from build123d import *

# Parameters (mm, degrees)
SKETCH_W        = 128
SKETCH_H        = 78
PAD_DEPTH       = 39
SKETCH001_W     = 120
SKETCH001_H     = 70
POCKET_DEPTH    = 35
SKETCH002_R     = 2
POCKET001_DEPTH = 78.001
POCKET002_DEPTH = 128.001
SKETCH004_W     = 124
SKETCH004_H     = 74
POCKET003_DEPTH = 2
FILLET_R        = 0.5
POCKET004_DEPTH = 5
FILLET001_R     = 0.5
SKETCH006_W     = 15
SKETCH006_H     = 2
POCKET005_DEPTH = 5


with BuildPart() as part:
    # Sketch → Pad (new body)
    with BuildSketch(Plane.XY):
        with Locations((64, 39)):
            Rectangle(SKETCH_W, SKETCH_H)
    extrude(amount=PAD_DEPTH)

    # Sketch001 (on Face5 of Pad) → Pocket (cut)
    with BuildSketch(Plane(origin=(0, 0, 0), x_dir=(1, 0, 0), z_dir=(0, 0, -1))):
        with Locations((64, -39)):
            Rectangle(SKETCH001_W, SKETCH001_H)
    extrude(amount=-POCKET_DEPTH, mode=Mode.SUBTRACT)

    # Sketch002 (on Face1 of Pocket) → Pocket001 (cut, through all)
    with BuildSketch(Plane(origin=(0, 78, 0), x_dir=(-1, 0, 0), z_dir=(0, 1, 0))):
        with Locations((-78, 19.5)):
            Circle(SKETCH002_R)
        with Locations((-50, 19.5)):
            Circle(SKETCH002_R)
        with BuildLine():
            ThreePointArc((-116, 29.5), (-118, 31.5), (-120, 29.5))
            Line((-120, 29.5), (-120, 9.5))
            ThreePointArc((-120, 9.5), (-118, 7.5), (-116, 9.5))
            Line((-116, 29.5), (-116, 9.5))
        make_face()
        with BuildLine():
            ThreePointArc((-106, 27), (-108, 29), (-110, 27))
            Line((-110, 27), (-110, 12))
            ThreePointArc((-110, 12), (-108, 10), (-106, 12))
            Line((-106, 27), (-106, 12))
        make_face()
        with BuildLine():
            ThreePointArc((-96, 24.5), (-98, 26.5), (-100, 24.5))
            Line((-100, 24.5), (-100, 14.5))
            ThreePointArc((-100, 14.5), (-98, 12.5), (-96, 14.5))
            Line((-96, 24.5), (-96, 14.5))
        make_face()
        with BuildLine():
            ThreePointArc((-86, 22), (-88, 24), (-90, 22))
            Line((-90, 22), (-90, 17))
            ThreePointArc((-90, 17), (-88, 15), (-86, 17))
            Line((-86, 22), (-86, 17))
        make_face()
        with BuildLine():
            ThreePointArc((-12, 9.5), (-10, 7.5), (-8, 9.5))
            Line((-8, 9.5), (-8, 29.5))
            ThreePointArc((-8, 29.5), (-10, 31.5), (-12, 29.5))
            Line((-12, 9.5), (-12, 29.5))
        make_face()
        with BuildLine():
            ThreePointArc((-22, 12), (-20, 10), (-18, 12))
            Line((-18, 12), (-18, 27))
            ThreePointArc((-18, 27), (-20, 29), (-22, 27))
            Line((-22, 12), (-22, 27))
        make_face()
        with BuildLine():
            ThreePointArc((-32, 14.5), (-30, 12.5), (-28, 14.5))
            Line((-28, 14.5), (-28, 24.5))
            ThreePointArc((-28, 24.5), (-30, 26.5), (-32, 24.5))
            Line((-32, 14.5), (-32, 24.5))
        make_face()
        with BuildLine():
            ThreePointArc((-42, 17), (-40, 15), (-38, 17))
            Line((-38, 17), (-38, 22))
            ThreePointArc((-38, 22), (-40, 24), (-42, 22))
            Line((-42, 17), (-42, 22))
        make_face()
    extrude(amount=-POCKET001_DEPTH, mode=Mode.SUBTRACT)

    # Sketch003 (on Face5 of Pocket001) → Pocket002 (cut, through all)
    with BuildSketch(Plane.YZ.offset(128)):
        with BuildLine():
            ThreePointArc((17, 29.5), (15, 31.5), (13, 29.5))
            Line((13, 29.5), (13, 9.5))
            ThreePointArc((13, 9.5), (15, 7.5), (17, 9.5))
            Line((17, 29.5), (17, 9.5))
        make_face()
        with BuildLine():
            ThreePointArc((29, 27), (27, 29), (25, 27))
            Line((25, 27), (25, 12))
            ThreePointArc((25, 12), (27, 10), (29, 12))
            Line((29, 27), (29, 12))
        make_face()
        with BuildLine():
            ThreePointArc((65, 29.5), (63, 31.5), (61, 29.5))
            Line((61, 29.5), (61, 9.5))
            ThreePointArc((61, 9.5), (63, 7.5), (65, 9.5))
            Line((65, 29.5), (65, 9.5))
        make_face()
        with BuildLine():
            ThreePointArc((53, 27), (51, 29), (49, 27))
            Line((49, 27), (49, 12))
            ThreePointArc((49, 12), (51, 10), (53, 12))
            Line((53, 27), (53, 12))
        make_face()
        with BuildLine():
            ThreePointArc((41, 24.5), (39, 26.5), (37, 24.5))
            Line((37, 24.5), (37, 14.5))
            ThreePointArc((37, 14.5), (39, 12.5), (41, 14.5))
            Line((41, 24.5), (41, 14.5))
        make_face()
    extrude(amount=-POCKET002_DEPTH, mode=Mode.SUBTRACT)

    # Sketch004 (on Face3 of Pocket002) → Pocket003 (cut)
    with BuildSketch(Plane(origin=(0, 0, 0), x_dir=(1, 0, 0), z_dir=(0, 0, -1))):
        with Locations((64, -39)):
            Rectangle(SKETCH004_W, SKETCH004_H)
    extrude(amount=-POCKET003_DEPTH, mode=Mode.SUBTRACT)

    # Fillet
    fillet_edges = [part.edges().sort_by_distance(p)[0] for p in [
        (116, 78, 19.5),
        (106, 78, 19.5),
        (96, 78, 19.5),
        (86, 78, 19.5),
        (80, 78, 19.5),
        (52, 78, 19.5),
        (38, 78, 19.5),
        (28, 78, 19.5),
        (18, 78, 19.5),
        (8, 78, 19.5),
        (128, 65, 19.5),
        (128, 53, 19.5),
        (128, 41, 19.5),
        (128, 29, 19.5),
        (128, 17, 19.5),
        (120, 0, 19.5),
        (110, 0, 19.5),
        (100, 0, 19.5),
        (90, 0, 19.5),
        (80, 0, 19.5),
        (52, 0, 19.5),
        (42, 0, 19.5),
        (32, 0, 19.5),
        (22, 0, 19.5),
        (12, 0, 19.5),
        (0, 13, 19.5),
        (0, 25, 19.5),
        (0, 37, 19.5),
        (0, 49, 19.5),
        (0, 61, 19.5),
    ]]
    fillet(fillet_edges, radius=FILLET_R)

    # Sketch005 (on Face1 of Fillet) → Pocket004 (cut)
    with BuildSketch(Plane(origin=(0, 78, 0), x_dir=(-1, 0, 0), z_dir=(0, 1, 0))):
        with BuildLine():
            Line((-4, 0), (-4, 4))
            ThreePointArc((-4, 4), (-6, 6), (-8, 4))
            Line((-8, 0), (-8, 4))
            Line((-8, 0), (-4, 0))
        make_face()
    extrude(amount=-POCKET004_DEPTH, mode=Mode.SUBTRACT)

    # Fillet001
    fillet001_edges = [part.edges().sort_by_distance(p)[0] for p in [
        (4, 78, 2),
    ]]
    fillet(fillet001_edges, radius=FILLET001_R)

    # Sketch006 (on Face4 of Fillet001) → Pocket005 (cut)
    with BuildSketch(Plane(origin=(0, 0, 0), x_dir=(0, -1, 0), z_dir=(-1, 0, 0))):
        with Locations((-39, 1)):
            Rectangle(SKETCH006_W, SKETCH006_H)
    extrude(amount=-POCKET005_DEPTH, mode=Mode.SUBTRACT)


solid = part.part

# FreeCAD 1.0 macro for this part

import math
import FreeCAD as App
import Part
import Sketcher


def edges_at(feature, points):
    """Names of the edges that pass closest to the given points."""
    edges = feature.Shape.Edges
    near = lambda p: min(range(len(edges)), key=lambda i: edges[i].distToShape(Part.Vertex(*p))[0])
    return sorted({f"Edge{near(p) + 1}" for p in points})

doc = App.newDocument("Part")
body = doc.addObject("PartDesign::Body", "Body")

# Sketch on XY plane
sketch1 = body.newObject("Sketcher::SketchObject", "Sketch")
sketch1.AttachmentSupport = (doc.getObject("XY_Plane"), [""])
sketch1.MapMode = "FlatFace"
sketch1.addGeometry([
    Part.LineSegment(App.Vector(0, 78, 0), App.Vector(0, 0, 0)),
    Part.LineSegment(App.Vector(0, 0, 0), App.Vector(128, 0, 0)),
    Part.LineSegment(App.Vector(128, 0, 0), App.Vector(128, 78, 0)),
    Part.LineSegment(App.Vector(128, 78, 0), App.Vector(0, 78, 0)),
], False)
sketch1.addConstraint([
    Sketcher.Constraint("Coincident", 0, 2, 1, 1),
    Sketcher.Constraint("Coincident", 1, 2, 2, 1),
    Sketcher.Constraint("Coincident", 2, 2, 3, 1),
    Sketcher.Constraint("Coincident", 3, 2, 0, 1),
    Sketcher.Constraint("Vertical", 0),
    Sketcher.Constraint("Horizontal", 1),
    Sketcher.Constraint("Vertical", 2),
    Sketcher.Constraint("Horizontal", 3),
    Sketcher.Constraint("Coincident", 0, 2, -1, 1),
    Sketcher.Constraint("DistanceX", 1, 1, 1, 2, 128.0),
    Sketcher.Constraint("DistanceY", 0, 2, 0, 1, 78.0),
])
pad1 = body.newObject("PartDesign::Pad", "Pad")
pad1.Profile = sketch1
pad1.Length = 39

# Sketch on XY plane
sketch2 = body.newObject("Sketcher::SketchObject", "Sketch001")
sketch2.AttachmentSupport = (doc.getObject("XY_Plane"), [""])
sketch2.MapMode = "FlatFace"
sketch2.addGeometry([
    Part.LineSegment(App.Vector(4, 4, 0), App.Vector(4, 74, 0)),
    Part.LineSegment(App.Vector(4, 74, 0), App.Vector(124, 74, 0)),
    Part.LineSegment(App.Vector(124, 74, 0), App.Vector(124, 4, 0)),
    Part.LineSegment(App.Vector(124, 4, 0), App.Vector(4, 4, 0)),
], False)
sketch2.addConstraint([
    Sketcher.Constraint("Coincident", 0, 2, 1, 1),
    Sketcher.Constraint("Coincident", 1, 2, 2, 1),
    Sketcher.Constraint("Coincident", 2, 2, 3, 1),
    Sketcher.Constraint("Coincident", 3, 2, 0, 1),
    Sketcher.Constraint("Vertical", 0),
    Sketcher.Constraint("Horizontal", 1),
    Sketcher.Constraint("Vertical", 2),
    Sketcher.Constraint("Horizontal", 3),
    Sketcher.Constraint("DistanceX", 1, 1, 1, 2, 120.0),
    Sketcher.Constraint("DistanceY", 0, 1, 0, 2, 70.0),
    Sketcher.Constraint("DistanceX", -1, 1, 0, 2, 4.0),
    Sketcher.Constraint("DistanceY", -1, 1, 0, 2, 74.0),
])
pocket1 = body.newObject("PartDesign::Pocket", "Pocket")
pocket1.Profile = sketch2
pocket1.Length = 35
pocket1.Reversed = True

# Sketch on XZ plane
sketch3 = body.newObject("Sketcher::SketchObject", "Sketch002")
sketch3.AttachmentSupport = (doc.getObject("XZ_Plane"), [""])
sketch3.MapMode = "FlatFace"
sketch3.AttachmentOffset = App.Placement(App.Vector(0, 0, -78), App.Rotation())
sketch3.addGeometry([
    Part.Circle(App.Vector(78, 19.5, 0), App.Vector(0, 0, 1), 2),  # 0
    Part.Circle(App.Vector(50, 19.5, 0), App.Vector(0, 0, 1), 2),  # 1
    Part.ArcOfCircle(Part.Circle(App.Vector(118, 29.5, 0), App.Vector(0, 0, 1), 2), math.radians(0), math.radians(180)),  # 2
    Part.LineSegment(App.Vector(120, 29.5, 0), App.Vector(120, 9.5, 0)),  # 3
    Part.ArcOfCircle(Part.Circle(App.Vector(118, 9.5, 0), App.Vector(0, 0, 1), 2), math.radians(180), math.radians(360)),  # 4
    Part.LineSegment(App.Vector(116, 9.5, 0), App.Vector(116, 29.5, 0)),  # 5
    Part.ArcOfCircle(Part.Circle(App.Vector(108, 27, 0), App.Vector(0, 0, 1), 2), math.radians(0), math.radians(180)),  # 6
    Part.LineSegment(App.Vector(110, 27, 0), App.Vector(110, 12, 0)),  # 7
    Part.ArcOfCircle(Part.Circle(App.Vector(108, 12, 0), App.Vector(0, 0, 1), 2), math.radians(180), math.radians(360)),  # 8
    Part.LineSegment(App.Vector(106, 12, 0), App.Vector(106, 27, 0)),  # 9
    Part.ArcOfCircle(Part.Circle(App.Vector(98, 24.5, 0), App.Vector(0, 0, 1), 2), math.radians(0), math.radians(180)),  # 10
    Part.LineSegment(App.Vector(100, 24.5, 0), App.Vector(100, 14.5, 0)),  # 11
    Part.ArcOfCircle(Part.Circle(App.Vector(98, 14.5, 0), App.Vector(0, 0, 1), 2), math.radians(180), math.radians(360)),  # 12
    Part.LineSegment(App.Vector(96, 14.5, 0), App.Vector(96, 24.5, 0)),  # 13
    Part.ArcOfCircle(Part.Circle(App.Vector(88, 22, 0), App.Vector(0, 0, 1), 2), math.radians(0), math.radians(180)),  # 14
    Part.LineSegment(App.Vector(90, 22, 0), App.Vector(90, 17, 0)),  # 15
    Part.ArcOfCircle(Part.Circle(App.Vector(88, 17, 0), App.Vector(0, 0, 1), 2), math.radians(180), math.radians(360)),  # 16
    Part.LineSegment(App.Vector(86, 17, 0), App.Vector(86, 22, 0)),  # 17
    Part.ArcOfCircle(Part.Circle(App.Vector(10, 9.5, 0), App.Vector(0, 0, 1), 2), math.radians(180), math.radians(360)),  # 18
    Part.LineSegment(App.Vector(8, 9.5, 0), App.Vector(8, 29.5, 0)),  # 19
    Part.ArcOfCircle(Part.Circle(App.Vector(10, 29.5, 0), App.Vector(0, 0, 1), 2), math.radians(0), math.radians(180)),  # 20
    Part.LineSegment(App.Vector(12, 29.5, 0), App.Vector(12, 9.5, 0)),  # 21
    Part.ArcOfCircle(Part.Circle(App.Vector(20, 12, 0), App.Vector(0, 0, 1), 2), math.radians(180), math.radians(360)),  # 22
    Part.LineSegment(App.Vector(18, 12, 0), App.Vector(18, 27, 0)),  # 23
    Part.ArcOfCircle(Part.Circle(App.Vector(20, 27, 0), App.Vector(0, 0, 1), 2), math.radians(0), math.radians(180)),  # 24
    Part.LineSegment(App.Vector(22, 27, 0), App.Vector(22, 12, 0)),  # 25
    Part.ArcOfCircle(Part.Circle(App.Vector(30, 14.5, 0), App.Vector(0, 0, 1), 2), math.radians(180), math.radians(360)),  # 26
    Part.LineSegment(App.Vector(28, 14.5, 0), App.Vector(28, 24.5, 0)),  # 27
    Part.ArcOfCircle(Part.Circle(App.Vector(30, 24.5, 0), App.Vector(0, 0, 1), 2), math.radians(0), math.radians(180)),  # 28
    Part.LineSegment(App.Vector(32, 24.5, 0), App.Vector(32, 14.5, 0)),  # 29
    Part.ArcOfCircle(Part.Circle(App.Vector(40, 17, 0), App.Vector(0, 0, 1), 2), math.radians(180), math.radians(360)),  # 30
    Part.LineSegment(App.Vector(38, 17, 0), App.Vector(38, 22, 0)),  # 31
    Part.ArcOfCircle(Part.Circle(App.Vector(40, 22, 0), App.Vector(0, 0, 1), 2), math.radians(0), math.radians(180)),  # 32
    Part.LineSegment(App.Vector(42, 22, 0), App.Vector(42, 17, 0)),  # 33
], False)
sketch3.addConstraint([
    Sketcher.Constraint("Tangent", 2, 1, 3, 1),
    Sketcher.Constraint("Tangent", 3, 2, 4, 2),
    Sketcher.Constraint("Tangent", 4, 1, 5, 1),
    Sketcher.Constraint("Tangent", 5, 2, 2, 2),
    Sketcher.Constraint("Tangent", 6, 1, 7, 1),
    Sketcher.Constraint("Tangent", 7, 2, 8, 2),
    Sketcher.Constraint("Tangent", 8, 1, 9, 1),
    Sketcher.Constraint("Tangent", 9, 2, 6, 2),
    Sketcher.Constraint("Tangent", 10, 1, 11, 1),
    Sketcher.Constraint("Tangent", 11, 2, 12, 2),
    Sketcher.Constraint("Tangent", 12, 1, 13, 1),
    Sketcher.Constraint("Tangent", 13, 2, 10, 2),
    Sketcher.Constraint("Tangent", 14, 1, 15, 1),
    Sketcher.Constraint("Tangent", 15, 2, 16, 2),
    Sketcher.Constraint("Tangent", 16, 1, 17, 1),
    Sketcher.Constraint("Tangent", 17, 2, 14, 2),
    Sketcher.Constraint("Tangent", 18, 1, 19, 1),
    Sketcher.Constraint("Tangent", 19, 2, 20, 2),
    Sketcher.Constraint("Tangent", 20, 1, 21, 1),
    Sketcher.Constraint("Tangent", 21, 2, 18, 2),
    Sketcher.Constraint("Tangent", 22, 1, 23, 1),
    Sketcher.Constraint("Tangent", 23, 2, 24, 2),
    Sketcher.Constraint("Tangent", 24, 1, 25, 1),
    Sketcher.Constraint("Tangent", 25, 2, 22, 2),
    Sketcher.Constraint("Tangent", 26, 1, 27, 1),
    Sketcher.Constraint("Tangent", 27, 2, 28, 2),
    Sketcher.Constraint("Tangent", 28, 1, 29, 1),
    Sketcher.Constraint("Tangent", 29, 2, 26, 2),
    Sketcher.Constraint("Tangent", 30, 1, 31, 1),
    Sketcher.Constraint("Tangent", 31, 2, 32, 2),
    Sketcher.Constraint("Tangent", 32, 1, 33, 1),
    Sketcher.Constraint("Tangent", 33, 2, 30, 2),
    Sketcher.Constraint("Vertical", 3),
    Sketcher.Constraint("Vertical", 5),
    Sketcher.Constraint("Vertical", 7),
    Sketcher.Constraint("Vertical", 9),
    Sketcher.Constraint("Vertical", 11),
    Sketcher.Constraint("Vertical", 13),
    Sketcher.Constraint("Vertical", 15),
    Sketcher.Constraint("Vertical", 17),
    Sketcher.Constraint("Vertical", 19),
    Sketcher.Constraint("Vertical", 21),
    Sketcher.Constraint("Vertical", 23),
    Sketcher.Constraint("Vertical", 25),
    Sketcher.Constraint("Vertical", 27),
    Sketcher.Constraint("Vertical", 29),
    Sketcher.Constraint("Vertical", 31),
    Sketcher.Constraint("Vertical", 33),
    Sketcher.Constraint("Equal", 0, 1),
    Sketcher.Constraint("Equal", 1, 2),
    Sketcher.Constraint("Equal", 4, 6),
    Sketcher.Constraint("Equal", 8, 10),
    Sketcher.Constraint("Equal", 12, 14),
    Sketcher.Constraint("Equal", 16, 18),
    Sketcher.Constraint("Equal", 20, 22),
    Sketcher.Constraint("Equal", 24, 26),
    Sketcher.Constraint("Equal", 28, 30),
    Sketcher.Constraint("Horizontal", 0, 3, 1, 3),
    Sketcher.Constraint("Horizontal", 4, 3, 18, 3),
    Sketcher.Constraint("Horizontal", 2, 3, 20, 3),
    Sketcher.Constraint("Horizontal", 8, 3, 22, 3),
    Sketcher.Constraint("Horizontal", 6, 3, 24, 3),
    Sketcher.Constraint("Horizontal", 12, 3, 26, 3),
    Sketcher.Constraint("Horizontal", 10, 3, 28, 3),
    Sketcher.Constraint("Horizontal", 16, 3, 30, 3),
    Sketcher.Constraint("Horizontal", 14, 3, 32, 3),
    Sketcher.Constraint("Diameter", 0, 4.0),
    Sketcher.Constraint("DistanceY", 3, 2, 3, 1, 20.0),
    Sketcher.Constraint("DistanceY", 7, 2, 7, 1, 15.0),
    Sketcher.Constraint("DistanceY", 11, 2, 11, 1, 10.0),
    Sketcher.Constraint("DistanceY", 15, 2, 15, 1, 5.0),
    Sketcher.Constraint("DistanceX", -1, 1, 0, 3, 78.0),
    Sketcher.Constraint("DistanceX", -1, 1, 1, 3, 50.0),
    Sketcher.Constraint("DistanceX", -1, 1, 2, 3, 118.0),
    Sketcher.Constraint("DistanceX", -1, 1, 6, 3, 108.0),
    Sketcher.Constraint("DistanceY", -1, 1, 6, 3, 27.0),
    Sketcher.Constraint("DistanceX", -1, 1, 10, 3, 98.0),
    Sketcher.Constraint("DistanceX", -1, 1, 14, 3, 88.0),
    Sketcher.Constraint("DistanceY", -1, 1, 14, 3, 22.0),
    Sketcher.Constraint("DistanceX", -1, 1, 18, 3, 10.0),
    Sketcher.Constraint("DistanceX", -1, 1, 22, 3, 20.0),
    Sketcher.Constraint("DistanceX", -1, 1, 26, 3, 30.0),
    Sketcher.Constraint("DistanceX", -1, 1, 30, 3, 40.0),
    Sketcher.Constraint("DistanceY", 0, 3, 2, 3, 10.0),
    Sketcher.Constraint("DistanceY", 0, 3, 10, 3, 5.0),
    Sketcher.Constraint("DistanceY", -1, 1, 0, 3, 19.5),
])
pocket2 = body.newObject("PartDesign::Pocket", "Pocket001")
pocket2.Profile = sketch3
pocket2.Type = "ThroughAll"
pocket2.Reversed = True

# Sketch on YZ plane
sketch4 = body.newObject("Sketcher::SketchObject", "Sketch003")
sketch4.AttachmentSupport = (doc.getObject("YZ_Plane"), [""])
sketch4.MapMode = "FlatFace"
sketch4.AttachmentOffset = App.Placement(App.Vector(0, 0, 128), App.Rotation())
sketch4.addGeometry([
    Part.ArcOfCircle(Part.Circle(App.Vector(15, 29.5, 0), App.Vector(0, 0, 1), 2), math.radians(0), math.radians(180)),  # 0
    Part.LineSegment(App.Vector(13, 29.5, 0), App.Vector(13, 9.5, 0)),  # 1
    Part.ArcOfCircle(Part.Circle(App.Vector(15, 9.5, 0), App.Vector(0, 0, 1), 2), math.radians(180), math.radians(360)),  # 2
    Part.LineSegment(App.Vector(17, 9.5, 0), App.Vector(17, 29.5, 0)),  # 3
    Part.ArcOfCircle(Part.Circle(App.Vector(27, 27, 0), App.Vector(0, 0, 1), 2), math.radians(0), math.radians(180)),  # 4
    Part.LineSegment(App.Vector(25, 27, 0), App.Vector(25, 12, 0)),  # 5
    Part.ArcOfCircle(Part.Circle(App.Vector(27, 12, 0), App.Vector(0, 0, 1), 2), math.radians(180), math.radians(360)),  # 6
    Part.LineSegment(App.Vector(29, 12, 0), App.Vector(29, 27, 0)),  # 7
    Part.ArcOfCircle(Part.Circle(App.Vector(63, 29.5, 0), App.Vector(0, 0, 1), 2), math.radians(0), math.radians(180)),  # 8
    Part.LineSegment(App.Vector(61, 29.5, 0), App.Vector(61, 9.5, 0)),  # 9
    Part.ArcOfCircle(Part.Circle(App.Vector(63, 9.5, 0), App.Vector(0, 0, 1), 2), math.radians(180), math.radians(360)),  # 10
    Part.LineSegment(App.Vector(65, 9.5, 0), App.Vector(65, 29.5, 0)),  # 11
    Part.ArcOfCircle(Part.Circle(App.Vector(51, 27, 0), App.Vector(0, 0, 1), 2), math.radians(0), math.radians(180)),  # 12
    Part.LineSegment(App.Vector(49, 27, 0), App.Vector(49, 12, 0)),  # 13
    Part.ArcOfCircle(Part.Circle(App.Vector(51, 12, 0), App.Vector(0, 0, 1), 2), math.radians(180), math.radians(360)),  # 14
    Part.LineSegment(App.Vector(53, 12, 0), App.Vector(53, 27, 0)),  # 15
    Part.ArcOfCircle(Part.Circle(App.Vector(39, 24.5, 0), App.Vector(0, 0, 1), 2), math.radians(0), math.radians(180)),  # 16
    Part.LineSegment(App.Vector(37, 24.5, 0), App.Vector(37, 14.5, 0)),  # 17
    Part.ArcOfCircle(Part.Circle(App.Vector(39, 14.5, 0), App.Vector(0, 0, 1), 2), math.radians(180), math.radians(360)),  # 18
    Part.LineSegment(App.Vector(41, 14.5, 0), App.Vector(41, 24.5, 0)),  # 19
], False)
sketch4.addConstraint([
    Sketcher.Constraint("Tangent", 0, 2, 1, 1),
    Sketcher.Constraint("Tangent", 1, 2, 2, 1),
    Sketcher.Constraint("Tangent", 2, 2, 3, 1),
    Sketcher.Constraint("Tangent", 3, 2, 0, 1),
    Sketcher.Constraint("Tangent", 4, 2, 5, 1),
    Sketcher.Constraint("Tangent", 5, 2, 6, 1),
    Sketcher.Constraint("Tangent", 6, 2, 7, 1),
    Sketcher.Constraint("Tangent", 7, 2, 4, 1),
    Sketcher.Constraint("Tangent", 8, 2, 9, 1),
    Sketcher.Constraint("Tangent", 9, 2, 10, 1),
    Sketcher.Constraint("Tangent", 10, 2, 11, 1),
    Sketcher.Constraint("Tangent", 11, 2, 8, 1),
    Sketcher.Constraint("Tangent", 12, 2, 13, 1),
    Sketcher.Constraint("Tangent", 13, 2, 14, 1),
    Sketcher.Constraint("Tangent", 14, 2, 15, 1),
    Sketcher.Constraint("Tangent", 15, 2, 12, 1),
    Sketcher.Constraint("Tangent", 16, 2, 17, 1),
    Sketcher.Constraint("Tangent", 17, 2, 18, 1),
    Sketcher.Constraint("Tangent", 18, 2, 19, 1),
    Sketcher.Constraint("Tangent", 19, 2, 16, 1),
    Sketcher.Constraint("Vertical", 1),
    Sketcher.Constraint("Vertical", 3),
    Sketcher.Constraint("Vertical", 5),
    Sketcher.Constraint("Vertical", 7),
    Sketcher.Constraint("Vertical", 9),
    Sketcher.Constraint("Vertical", 11),
    Sketcher.Constraint("Vertical", 13),
    Sketcher.Constraint("Vertical", 15),
    Sketcher.Constraint("Vertical", 17),
    Sketcher.Constraint("Vertical", 19),
    Sketcher.Constraint("Equal", 2, 4),
    Sketcher.Constraint("Equal", 6, 8),
    Sketcher.Constraint("Equal", 10, 12),
    Sketcher.Constraint("Equal", 14, 16),
    Sketcher.Constraint("Horizontal", 0, 3, 8, 3),
    Sketcher.Constraint("Horizontal", 2, 3, 10, 3),
    Sketcher.Constraint("Horizontal", 4, 3, 12, 3),
    Sketcher.Constraint("Horizontal", 6, 3, 14, 3),
    Sketcher.Constraint("Radius", 0, 2.0),
    Sketcher.Constraint("DistanceY", 1, 2, 1, 1, 20.0),
    Sketcher.Constraint("DistanceY", 5, 2, 5, 1, 15.0),
    Sketcher.Constraint("DistanceY", 17, 2, 17, 1, 10.0),
    Sketcher.Constraint("DistanceX", -1, 1, 0, 3, 15.0),
    Sketcher.Constraint("DistanceX", -1, 1, 4, 3, 27.0),
    Sketcher.Constraint("DistanceY", -1, 1, 4, 3, 27.0),
    Sketcher.Constraint("DistanceX", -1, 1, 8, 3, 63.0),
    Sketcher.Constraint("DistanceX", -1, 1, 12, 3, 51.0),
    Sketcher.Constraint("DistanceX", -1, 1, 16, 3, 39.0),
    Sketcher.Constraint("DistanceY", 16, 3, 0, 3, 5.0),
    Sketcher.Constraint("DistanceY", -1, 1, 0, 3, 29.5),
])
pocket3 = body.newObject("PartDesign::Pocket", "Pocket002")
pocket3.Profile = sketch4
pocket3.Type = "ThroughAll"

# Sketch on XY plane
sketch5 = body.newObject("Sketcher::SketchObject", "Sketch004")
sketch5.AttachmentSupport = (doc.getObject("XY_Plane"), [""])
sketch5.MapMode = "FlatFace"
sketch5.addGeometry([
    Part.LineSegment(App.Vector(2, 2, 0), App.Vector(2, 76, 0)),
    Part.LineSegment(App.Vector(2, 76, 0), App.Vector(126, 76, 0)),
    Part.LineSegment(App.Vector(126, 76, 0), App.Vector(126, 2, 0)),
    Part.LineSegment(App.Vector(126, 2, 0), App.Vector(2, 2, 0)),
], False)
sketch5.addConstraint([
    Sketcher.Constraint("Coincident", 0, 2, 1, 1),
    Sketcher.Constraint("Coincident", 1, 2, 2, 1),
    Sketcher.Constraint("Coincident", 2, 2, 3, 1),
    Sketcher.Constraint("Coincident", 3, 2, 0, 1),
    Sketcher.Constraint("Vertical", 0),
    Sketcher.Constraint("Horizontal", 1),
    Sketcher.Constraint("Vertical", 2),
    Sketcher.Constraint("Horizontal", 3),
    Sketcher.Constraint("DistanceX", 1, 1, 1, 2, 124.0),
    Sketcher.Constraint("DistanceY", 0, 1, 0, 2, 74.0),
    Sketcher.Constraint("DistanceX", -1, 1, 0, 2, 2.0),
    Sketcher.Constraint("DistanceY", -1, 1, 0, 2, 76.0),
])
pocket4 = body.newObject("PartDesign::Pocket", "Pocket003")
pocket4.Profile = sketch5
pocket4.Length = 2
pocket4.Reversed = True
doc.recompute()

fillet = body.newObject("PartDesign::Fillet", "Fillet")
fillet.Base = (pocket4, edges_at(pocket4, [
    (116, 78, 19.5),
    (106, 78, 19.5),
    (96, 78, 19.5),
    (86, 78, 19.5),
    (80, 78, 19.5),
    (52, 78, 19.5),
    (38, 78, 19.5),
    (28, 78, 19.5),
    (18, 78, 19.5),
    (8, 78, 19.5),
    (128, 65, 19.5),
    (128, 53, 19.5),
    (128, 41, 19.5),
    (128, 29, 19.5),
    (128, 17, 19.5),
    (120, 0, 19.5),
    (110, 0, 19.5),
    (100, 0, 19.5),
    (90, 0, 19.5),
    (80, 0, 19.5),
    (52, 0, 19.5),
    (42, 0, 19.5),
    (32, 0, 19.5),
    (22, 0, 19.5),
    (12, 0, 19.5),
    (0, 13, 19.5),
    (0, 25, 19.5),
    (0, 37, 19.5),
    (0, 49, 19.5),
    (0, 61, 19.5),
]))
fillet.Radius = 0.5

# Sketch on XZ plane
sketch6 = body.newObject("Sketcher::SketchObject", "Sketch005")
sketch6.AttachmentSupport = (doc.getObject("XZ_Plane"), [""])
sketch6.MapMode = "FlatFace"
sketch6.AttachmentOffset = App.Placement(App.Vector(0, 0, -78), App.Rotation())
sketch6.addGeometry([
    Part.LineSegment(App.Vector(4, 0, 0), App.Vector(4, 4, 0)),
    Part.ArcOfCircle(Part.Circle(App.Vector(6, 4, 0), App.Vector(0, 0, 1), 2), math.radians(0), math.radians(180)),
    Part.LineSegment(App.Vector(8, 4, 0), App.Vector(8, 0, 0)),
    Part.LineSegment(App.Vector(8, 0, 0), App.Vector(4, 0, 0)),
], False)
sketch6.addConstraint([
    Sketcher.Constraint("Tangent", 0, 2, 1, 2),
    Sketcher.Constraint("Tangent", 1, 1, 2, 1),
    Sketcher.Constraint("Coincident", 2, 2, 3, 1),
    Sketcher.Constraint("Coincident", 3, 2, 0, 1),
    Sketcher.Constraint("Vertical", 0),
    Sketcher.Constraint("Vertical", 2),
    Sketcher.Constraint("Horizontal", 3),
    Sketcher.Constraint("PointOnObject", 2, 2, -1),
    Sketcher.Constraint("Equal", 3, 0),
    Sketcher.Constraint("Radius", 1, 2.0),
    Sketcher.Constraint("DistanceX", -1, 1, 1, 3, 6.0),
])
pocket5 = body.newObject("PartDesign::Pocket", "Pocket004")
pocket5.Profile = sketch6
pocket5.Length = 5
pocket5.Reversed = True
doc.recompute()

fillet2 = body.newObject("PartDesign::Fillet", "Fillet001")
fillet2.Base = (pocket5, edges_at(pocket5, [(4, 78, 2)]))
fillet2.Radius = 0.5

# Sketch on YZ plane
sketch7 = body.newObject("Sketcher::SketchObject", "Sketch006")
sketch7.AttachmentSupport = (doc.getObject("YZ_Plane"), [""])
sketch7.MapMode = "FlatFace"
sketch7.addGeometry([
    Part.LineSegment(App.Vector(46.5, 2, 0), App.Vector(46.5, 0, 0)),
    Part.LineSegment(App.Vector(46.5, 0, 0), App.Vector(31.5, 0, 0)),
    Part.LineSegment(App.Vector(31.5, 0, 0), App.Vector(31.5, 2, 0)),
    Part.LineSegment(App.Vector(31.5, 2, 0), App.Vector(46.5, 2, 0)),
], False)
sketch7.addConstraint([
    Sketcher.Constraint("Coincident", 0, 2, 1, 1),
    Sketcher.Constraint("Coincident", 1, 2, 2, 1),
    Sketcher.Constraint("Coincident", 2, 2, 3, 1),
    Sketcher.Constraint("Coincident", 3, 2, 0, 1),
    Sketcher.Constraint("Vertical", 0),
    Sketcher.Constraint("Horizontal", 1),
    Sketcher.Constraint("Vertical", 2),
    Sketcher.Constraint("Horizontal", 3),
    Sketcher.Constraint("PointOnObject", 0, 2, -1),
    Sketcher.Constraint("DistanceX", 1, 2, 1, 1, 15.0),
    Sketcher.Constraint("DistanceY", 0, 2, 0, 1, 2.0),
    Sketcher.Constraint("DistanceX", -1, 1, 0, 2, 46.5),
])
pocket6 = body.newObject("PartDesign::Pocket", "Pocket005")
pocket6.Profile = sketch7
pocket6.Length = 5
pocket6.Reversed = True

doc.recompute()
